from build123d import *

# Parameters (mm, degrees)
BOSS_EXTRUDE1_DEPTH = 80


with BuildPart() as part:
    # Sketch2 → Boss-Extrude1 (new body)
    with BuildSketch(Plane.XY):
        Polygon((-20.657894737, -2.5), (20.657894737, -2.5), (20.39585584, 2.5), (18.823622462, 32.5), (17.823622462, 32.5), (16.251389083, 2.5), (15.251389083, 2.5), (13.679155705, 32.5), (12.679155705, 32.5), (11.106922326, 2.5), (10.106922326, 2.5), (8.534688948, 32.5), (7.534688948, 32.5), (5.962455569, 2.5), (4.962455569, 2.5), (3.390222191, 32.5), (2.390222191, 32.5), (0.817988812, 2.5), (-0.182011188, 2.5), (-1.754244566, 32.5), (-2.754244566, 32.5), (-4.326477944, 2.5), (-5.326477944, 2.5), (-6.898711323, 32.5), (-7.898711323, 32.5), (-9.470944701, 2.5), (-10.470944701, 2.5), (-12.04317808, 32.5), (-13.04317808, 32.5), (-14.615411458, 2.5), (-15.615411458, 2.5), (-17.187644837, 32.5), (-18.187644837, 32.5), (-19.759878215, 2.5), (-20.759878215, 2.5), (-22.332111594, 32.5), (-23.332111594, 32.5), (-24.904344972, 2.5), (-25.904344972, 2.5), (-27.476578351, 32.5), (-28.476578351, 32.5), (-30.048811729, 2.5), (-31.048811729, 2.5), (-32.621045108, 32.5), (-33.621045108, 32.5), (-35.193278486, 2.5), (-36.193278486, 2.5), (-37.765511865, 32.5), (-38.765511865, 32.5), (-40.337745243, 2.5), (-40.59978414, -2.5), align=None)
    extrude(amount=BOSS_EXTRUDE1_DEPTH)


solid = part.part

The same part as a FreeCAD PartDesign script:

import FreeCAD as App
import Part
import Sketcher
from FreeCAD import Vector
Q = App.Units.Quantity


def add_polygon(sketch, points):
    """Adds a closed chain of lines whose ends are joined by coincident constraints."""
    first, n = sketch.GeometryCount, len(points)
    for a, b in zip(points, points[1:] + points[:1]):
        sketch.addGeometry(Part.LineSegment(App.Vector(*a, 0), App.Vector(*b, 0)), False)
    for i in range(n):
        sketch.addConstraint(Sketcher.Constraint("Coincident", first + i, 2, first + (i + 1) % n, 1))

doc = App.newDocument("Part")
body = doc.addObject("PartDesign::Body", "Body")

sketch1 = doc.addObject("Sketcher::SketchObject", "Sketch")
body.addObject(sketch1)
sketch1.AttachmentSupport = (doc.XY_Plane, [""])
sketch1.MapMode = "FlatFace"
add_polygon(sketch1, [(20.7, -2.5), (20.4, 2.5), (18.8, 32.5), (17.8, 32.5), (16.3, 2.5), (15.3, 2.5), (13.7, 32.5), (12.7, 32.5), (11.1, 2.5), (10.1, 2.5), (8.5, 32.5), (7.5, 32.5), (6, 2.5), (5, 2.5), (3.4, 32.5), (2.4, 32.5), (0.8, 2.5), (-0.2, 2.5), (-1.8, 32.5), (-2.8, 32.5), (-4.3, 2.5), (-5.3, 2.5), (-6.9, 32.5), (-7.9, 32.5), (-9.5, 2.5), (-10.5, 2.5), (-12, 32.5), (-13, 32.5), (-14.6, 2.5), (-15.6, 2.5), (-17.2, 32.5), (-18.2, 32.5), (-19.8, 2.5), (-20.8, 2.5), (-22.3, 32.5), (-23.3, 32.5), (-24.9, 2.5), (-25.9, 2.5), (-27.5, 32.5), (-28.5, 32.5), (-30, 2.5), (-31, 2.5), (-32.6, 32.5), (-33.6, 32.5), (-35.2, 2.5), (-36.2, 2.5), (-37.8, 32.5), (-38.8, 32.5), (-40.3, 2.5), (-40.6, -2.5)])
sketch1.addConstraint(Sketcher.Constraint("Horizontal", 2))
sketch1.addConstraint(Sketcher.Constraint("Horizontal", 4))
sketch1.addConstraint(Sketcher.Constraint("Horizontal", 6))
sketch1.addConstraint(Sketcher.Constraint("Horizontal", 8))
sketch1.addConstraint(Sketcher.Constraint("Horizontal", 10))
sketch1.addConstraint(Sketcher.Constraint("Horizontal", 12))
sketch1.addConstraint(Sketcher.Constraint("Horizontal", 14))
sketch1.addConstraint(Sketcher.Constraint("Horizontal", 16))
sketch1.addConstraint(Sketcher.Constraint("Horizontal", 18))
sketch1.addConstraint(Sketcher.Constraint("Horizontal", 20))
sketch1.addConstraint(Sketcher.Constraint("Horizontal", 22))
sketch1.addConstraint(Sketcher.Constraint("Horizontal", 24))
sketch1.addConstraint(Sketcher.Constraint("Horizontal", 26))
sketch1.addConstraint(Sketcher.Constraint("Horizontal", 28))
sketch1.addConstraint(Sketcher.Constraint("Horizontal", 30))
sketch1.addConstraint(Sketcher.Constraint("Horizontal", 32))
sketch1.addConstraint(Sketcher.Constraint("Horizontal", 34))
sketch1.addConstraint(Sketcher.Constraint("Horizontal", 36))
sketch1.addConstraint(Sketcher.Constraint("Horizontal", 38))
sketch1.addConstraint(Sketcher.Constraint("Horizontal", 40))
sketch1.addConstraint(Sketcher.Constraint("Horizontal", 42))
sketch1.addConstraint(Sketcher.Constraint("Horizontal", 44))
sketch1.addConstraint(Sketcher.Constraint("Horizontal", 46))
sketch1.addConstraint(Sketcher.Constraint("Horizontal", 49))
sketch1.addConstraint(Sketcher.Constraint("Parallel", 0, 1))
sketch1.addConstraint(Sketcher.Constraint("Parallel", 1, 5))
sketch1.addConstraint(Sketcher.Constraint("Parallel", 3, 7))
sketch1.addConstraint(Sketcher.Constraint("Parallel", 5, 9))
sketch1.addConstraint(Sketcher.Constraint("Parallel", 7, 11))
sketch1.addConstraint(Sketcher.Constraint("Parallel", 9, 13))
sketch1.addConstraint(Sketcher.Constraint("Parallel", 11, 15))
sketch1.addConstraint(Sketcher.Constraint("Parallel", 13, 17))
sketch1.addConstraint(Sketcher.Constraint("Parallel", 15, 19))
sketch1.addConstraint(Sketcher.Constraint("Parallel", 17, 21))
sketch1.addConstraint(Sketcher.Constraint("Parallel", 19, 23))
sketch1.addConstraint(Sketcher.Constraint("Parallel", 21, 25))
sketch1.addConstraint(Sketcher.Constraint("Parallel", 23, 27))
sketch1.addConstraint(Sketcher.Constraint("Parallel", 25, 29))
sketch1.addConstraint(Sketcher.Constraint("Parallel", 27, 31))
sketch1.addConstraint(Sketcher.Constraint("Parallel", 29, 33))
sketch1.addConstraint(Sketcher.Constraint("Parallel", 31, 35))
sketch1.addConstraint(Sketcher.Constraint("Parallel", 33, 37))
sketch1.addConstraint(Sketcher.Constraint("Parallel", 35, 39))
sketch1.addConstraint(Sketcher.Constraint("Parallel", 37, 41))
sketch1.addConstraint(Sketcher.Constraint("Parallel", 39, 43))
sketch1.addConstraint(Sketcher.Constraint("Parallel", 41, 45))
sketch1.addConstraint(Sketcher.Constraint("Parallel", 43, 47))
sketch1.addConstraint(Sketcher.Constraint("Parallel", 47, 48))
sketch1.addConstraint(Sketcher.Constraint("Horizontal", 0, 2, 3, 2))
sketch1.addConstraint(Sketcher.Constraint("Horizontal", 2, 2, 5, 2))
sketch1.addConstraint(Sketcher.Constraint("Horizontal", 4, 2, 7, 2))
sketch1.addConstraint(Sketcher.Constraint("Horizontal", 6, 2, 9, 2))
sketch1.addConstraint(Sketcher.Constraint("Horizontal", 8, 2, 11, 2))
sketch1.addConstraint(Sketcher.Constraint("Horizontal", 10, 2, 13, 2))
sketch1.addConstraint(Sketcher.Constraint("Horizontal", 12, 2, 15, 2))
sketch1.addConstraint(Sketcher.Constraint("Horizontal", 14, 2, 17, 2))
sketch1.addConstraint(Sketcher.Constraint("Horizontal", 16, 2, 19, 2))
sketch1.addConstraint(Sketcher.Constraint("Horizontal", 18, 2, 21, 2))
sketch1.addConstraint(Sketcher.Constraint("Horizontal", 20, 2, 23, 2))
sketch1.addConstraint(Sketcher.Constraint("Horizontal", 22, 2, 25, 2))
sketch1.addConstraint(Sketcher.Constraint("Horizontal", 24, 2, 27, 2))
sketch1.addConstraint(Sketcher.Constraint("Horizontal", 26, 2, 29, 2))
sketch1.addConstraint(Sketcher.Constraint("Horizontal", 28, 2, 31, 2))
sketch1.addConstraint(Sketcher.Constraint("Horizontal", 30, 2, 33, 2))
sketch1.addConstraint(Sketcher.Constraint("Horizontal", 32, 2, 35, 2))
sketch1.addConstraint(Sketcher.Constraint("Horizontal", 34, 2, 37, 2))
sketch1.addConstraint(Sketcher.Constraint("Horizontal", 36, 2, 39, 2))
sketch1.addConstraint(Sketcher.Constraint("Horizontal", 38, 2, 41, 2))
sketch1.addConstraint(Sketcher.Constraint("Horizontal", 40, 2, 43, 2))
sketch1.addConstraint(Sketcher.Constraint("Horizontal", 42, 2, 45, 2))
sketch1.addConstraint(Sketcher.Constraint("Horizontal", 44, 2, 47, 2))
sketch1.addConstraint(Sketcher.Constraint("Equal", 2, 4))
sketch1.addConstraint(Sketcher.Constraint("Equal", 4, 6))
sketch1.addConstraint(Sketcher.Constraint("Equal", 6, 8))
sketch1.addConstraint(Sketcher.Constraint("Equal", 8, 10))
sketch1.addConstraint(Sketcher.Constraint("Equal", 10, 12))
sketch1.addConstraint(Sketcher.Constraint("Equal", 12, 14))
sketch1.addConstraint(Sketcher.Constraint("Equal", 14, 16))
sketch1.addConstraint(Sketcher.Constraint("Equal", 16, 18))
sketch1.addConstraint(Sketcher.Constraint("Equal", 18, 20))
sketch1.addConstraint(Sketcher.Constraint("Equal", 20, 22))
sketch1.addConstraint(Sketcher.Constraint("Equal", 22, 24))
sketch1.addConstraint(Sketcher.Constraint("Equal", 24, 26))
sketch1.addConstraint(Sketcher.Constraint("Equal", 26, 28))
sketch1.addConstraint(Sketcher.Constraint("Equal", 28, 30))
sketch1.addConstraint(Sketcher.Constraint("Equal", 30, 32))
sketch1.addConstraint(Sketcher.Constraint("Equal", 32, 34))
sketch1.addConstraint(Sketcher.Constraint("Equal", 34, 36))
sketch1.addConstraint(Sketcher.Constraint("Equal", 36, 38))
sketch1.addConstraint(Sketcher.Constraint("Equal", 38, 40))
sketch1.addConstraint(Sketcher.Constraint("Equal", 40, 42))
sketch1.addConstraint(Sketcher.Constraint("Equal", 42, 44))
sketch1.addConstraint(Sketcher.Constraint("Equal", 44, 46))
sketch1.addConstraint(Sketcher.Constraint("Equal", 1, 3))
sketch1.addConstraint(Sketcher.Constraint("DistanceX", 2, 2, 2, 1, 1.0))
sketch1.addConstraint(Sketcher.Constraint("Angle", 0, Q("93 deg")))
sketch1.addConstraint(Sketcher.Constraint("DistanceY", 0, 2, 1, 2, 30.0))
sketch1.addConstraint(Sketcher.Constraint("DistanceY", 48, 2, 47, 2, 5.0))
sketch1.addConstraint(Sketcher.Constraint("DistanceY", -1, 1, 0, 2, 2.5))
sketch1.addConstraint(Sketcher.Constraint("DistanceX", -1, 1, 3, 2, 16.251389))
pad1 = doc.addObject("PartDesign::Pad", "Pad")
body.addObject(pad1)
pad1.Profile = sketch1
pad1.Length = 80

doc.recompute()
